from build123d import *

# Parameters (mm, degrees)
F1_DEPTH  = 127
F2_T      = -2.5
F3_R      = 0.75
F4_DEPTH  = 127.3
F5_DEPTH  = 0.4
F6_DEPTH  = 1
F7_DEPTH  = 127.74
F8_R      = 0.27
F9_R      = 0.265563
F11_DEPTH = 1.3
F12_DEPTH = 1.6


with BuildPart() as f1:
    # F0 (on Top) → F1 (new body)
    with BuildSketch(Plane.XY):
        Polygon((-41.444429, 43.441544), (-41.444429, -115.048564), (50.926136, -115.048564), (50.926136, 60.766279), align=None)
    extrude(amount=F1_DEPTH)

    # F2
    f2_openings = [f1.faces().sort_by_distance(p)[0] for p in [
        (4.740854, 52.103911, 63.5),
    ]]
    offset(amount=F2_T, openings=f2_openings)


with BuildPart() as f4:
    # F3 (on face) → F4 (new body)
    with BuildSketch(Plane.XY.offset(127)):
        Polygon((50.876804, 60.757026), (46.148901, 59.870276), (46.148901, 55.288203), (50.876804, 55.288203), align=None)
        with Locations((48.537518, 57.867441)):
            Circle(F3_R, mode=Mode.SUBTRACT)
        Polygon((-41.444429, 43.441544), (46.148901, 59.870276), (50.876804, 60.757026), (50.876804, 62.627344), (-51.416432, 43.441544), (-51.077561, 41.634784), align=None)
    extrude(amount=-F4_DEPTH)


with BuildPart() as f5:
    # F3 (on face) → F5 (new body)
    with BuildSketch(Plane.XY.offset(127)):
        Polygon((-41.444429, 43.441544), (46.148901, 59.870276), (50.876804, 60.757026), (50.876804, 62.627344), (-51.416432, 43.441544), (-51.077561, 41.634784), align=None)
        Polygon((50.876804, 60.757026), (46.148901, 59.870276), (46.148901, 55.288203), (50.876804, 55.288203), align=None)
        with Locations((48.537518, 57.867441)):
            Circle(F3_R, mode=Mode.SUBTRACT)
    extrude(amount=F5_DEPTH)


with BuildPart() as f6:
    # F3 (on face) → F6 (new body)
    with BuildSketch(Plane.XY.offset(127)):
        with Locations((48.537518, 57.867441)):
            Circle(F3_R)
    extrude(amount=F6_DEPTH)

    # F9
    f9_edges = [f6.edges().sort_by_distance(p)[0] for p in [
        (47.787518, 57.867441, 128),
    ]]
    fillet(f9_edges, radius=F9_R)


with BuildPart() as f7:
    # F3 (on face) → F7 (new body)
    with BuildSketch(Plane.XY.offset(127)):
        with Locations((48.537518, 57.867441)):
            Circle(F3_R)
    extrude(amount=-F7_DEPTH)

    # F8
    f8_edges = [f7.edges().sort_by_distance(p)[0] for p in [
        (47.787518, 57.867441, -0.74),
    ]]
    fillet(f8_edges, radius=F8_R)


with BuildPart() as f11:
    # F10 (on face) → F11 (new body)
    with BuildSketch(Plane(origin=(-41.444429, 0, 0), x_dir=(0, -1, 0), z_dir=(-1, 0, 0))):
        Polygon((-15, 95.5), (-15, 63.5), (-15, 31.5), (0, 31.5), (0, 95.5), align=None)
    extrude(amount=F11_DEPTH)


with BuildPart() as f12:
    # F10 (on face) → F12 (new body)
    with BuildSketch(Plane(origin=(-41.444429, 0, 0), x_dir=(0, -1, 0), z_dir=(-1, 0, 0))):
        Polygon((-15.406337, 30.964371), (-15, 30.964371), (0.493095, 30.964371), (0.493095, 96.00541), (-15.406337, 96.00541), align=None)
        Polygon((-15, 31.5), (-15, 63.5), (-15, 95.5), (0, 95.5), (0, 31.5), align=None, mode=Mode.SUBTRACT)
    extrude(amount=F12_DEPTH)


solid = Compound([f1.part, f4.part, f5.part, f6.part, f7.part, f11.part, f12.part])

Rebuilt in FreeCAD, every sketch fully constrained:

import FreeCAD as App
import Part
import Sketcher

V = App.Vector


def edges_at(feature, points):
    """Names of the edges that pass closest to the given points."""
    edges = feature.Shape.Edges
    near = lambda p: min(range(len(edges)), key=lambda i: edges[i].distToShape(Part.Vertex(*p))[0])
    return sorted({f"Edge{near(p) + 1}" for p in points})


def faces_at(feature, points):
    """Names of the faces that lie closest to the given points."""
    faces = feature.Shape.Faces
    near = lambda p: min(range(len(faces)), key=lambda i: faces[i].distToShape(Part.Vertex(*p))[0])
    return sorted({f"Face{near(p) + 1}" for p in points})


def add_polygon(sketch, points):
    """Adds a closed chain of lines whose ends are joined by coincident constraints."""
    first, n = sketch.GeometryCount, len(points)
    for a, b in zip(points, points[1:] + points[:1]):
        sketch.addGeometry(Part.LineSegment(App.Vector(*a, 0), App.Vector(*b, 0)), False)
    for i in range(n):
        sketch.addConstraint(Sketcher.Constraint("Coincident", first + i, 2, first + (i + 1) % n, 1))

doc = App.newDocument("Part")
body = doc.addObject("PartDesign::Body", "Body")

# Sketch on XY plane
sketch1 = body.newObject("Sketcher::SketchObject", "Sketch")
sketch1.AttachmentSupport = (doc.getObject("XY_Plane"), [""])
sketch1.MapMode = "FlatFace"
add_polygon(sketch1, [(-41, 43), (-41, -115), (51, -115), (51, 61)])  # lines 0-3
sketch1.addConstraint([
    Sketcher.Constraint("Vertical", 0),
    Sketcher.Constraint("Horizontal", 1),
    Sketcher.Constraint("Vertical", 2),
    Sketcher.Constraint("DistanceY", 0, 2, 0, 1, 158.490108),
    Sketcher.Constraint("Distance", 3, 93.981209),
    Sketcher.Constraint("DistanceX", 1, 1, 1, 2, 92.370565),
    Sketcher.Constraint("DistanceX", 0, 2, -1, 1, 41.444429),
    Sketcher.Constraint("DistanceY", -1, 1, 2, 2, 60.766279),
])
pad1 = body.newObject("PartDesign::Pad", "Pad")
pad1.Profile = sketch1
pad1.Length = 127
doc.recompute()

thickness = body.newObject("PartDesign::Thickness", "Thickness")
thickness.Base = (pad1, faces_at(pad1, [(4.741, 52.104, 63.5)]))
thickness.Value = 2.5
thickness.Reversed = True
thickness.Join = "Arc"
body2 = doc.addObject("PartDesign::Body", "Body001")

# Sketch on XY plane
sketch2 = body2.newObject("Sketcher::SketchObject", "Sketch001")
sketch2.AttachmentSupport = (doc.getObject("XY_Plane001"), [""])
sketch2.MapMode = "FlatFace"
sketch2.AttachmentOffset = App.Placement(V(0, 0, 127), App.Rotation())
add_polygon(sketch2, [(50.9, 55.3), (50.9, 62.6), (-51.4, 43.4), (-51.1, 41.6), (-41.4, 43.4), (46.1, 59.9), (46.1, 55.3)])  # lines 0-6
sketch2.addGeometry(Part.Circle(V(48.5, 57.9, 0), V(0, 0, 1), 0.8), False)  # 7
sketch2.addConstraint([
    Sketcher.Constraint("Vertical", 0),
    Sketcher.Constraint("Vertical", 5),
    Sketcher.Constraint("Horizontal", 6),
    Sketcher.Constraint("Perpendicular", 1, 2),
    Sketcher.Constraint("Perpendicular", 2, 3),
    Sketcher.Constraint("Parallel", 3, 4),
    Sketcher.Constraint("Horizontal", 1, 2, 3, 2),
    Sketcher.Constraint("Diameter", 7, 1.5),
    Sketcher.Constraint("Distance", 1, 104.0769),
    Sketcher.Constraint("DistanceY", 0, 1, 0, 2, 7.339141),
    Sketcher.Constraint("DistanceX", -1, 1, 4, 2, 46.148901),
    Sketcher.Constraint("DistanceY", 1, 2, 0, 2, 19.1858),
    Sketcher.Constraint("DistanceX", 6, 1, 6, 2, 4.727903),
    Sketcher.Constraint("DistanceY", 5, 2, 5, 1, 4.582073),
    Sketcher.Constraint("DistanceY", -1, 1, 7, 3, 57.867441),
    Sketcher.Constraint("DistanceX", 1, 2, 7, 3, 99.95395),
    Sketcher.Constraint("DistanceY", -1, 1, 0, 2, 62.627344),
])
pad2 = body2.newObject("PartDesign::Pad", "Pad001")
pad2.Profile = sketch2
pad2.Length = 127.3
pad2.Reversed = True
body3 = doc.addObject("PartDesign::Body", "Body002")

# Sketch on XY plane
sketch3 = body3.newObject("Sketcher::SketchObject", "Sketch002")
sketch3.AttachmentSupport = (doc.getObject("XY_Plane002"), [""])
sketch3.MapMode = "FlatFace"
sketch3.AttachmentOffset = App.Placement(V(0, 0, 127), App.Rotation())
add_polygon(sketch3, [(-41.4, 43.4), (46.1, 59.9), (46.1, 55.3), (50.9, 55.3), (50.9, 62.6), (-51.4, 43.4), (-51.1, 41.6)])  # lines 0-6
sketch3.addGeometry(Part.Circle(V(48.5, 57.9, 0), V(0, 0, 1), 0.8), False)  # 7
sketch3.addConstraint([
    Sketcher.Constraint("Vertical", 1),
    Sketcher.Constraint("Horizontal", 2),
    Sketcher.Constraint("Vertical", 3),
    Sketcher.Constraint("Parallel", 0, 4),
    Sketcher.Constraint("Perpendicular", 4, 5),
    Sketcher.Constraint("Perpendicular", 5, 6),
    Sketcher.Constraint("Horizontal", 4, 2, 6, 2),
    Sketcher.Constraint("Diameter", 7, 1.5),
    Sketcher.Constraint("Distance", 4, 104.0769),
    Sketcher.Constraint("DistanceY", 3, 1, 3, 2, 7.339141),
    Sketcher.Constraint("DistanceX", -1, 1, 0, 2, 46.148901),
    Sketcher.Constraint("DistanceY", 4, 2, 3, 2, 19.1858),
    Sketcher.Constraint("DistanceX", 2, 1, 2, 2, 4.727903),
    Sketcher.Constraint("DistanceY", 1, 2, 1, 1, 4.582073),
    Sketcher.Constraint("DistanceY", -1, 1, 7, 3, 57.867441),
    Sketcher.Constraint("DistanceX", 4, 2, 7, 3, 99.95395),
    Sketcher.Constraint("DistanceY", -1, 1, 0, 2, 59.870276),
])
pad3 = body3.newObject("PartDesign::Pad", "Pad002")
pad3.Profile = sketch3
pad3.Length = 0.4
body4 = doc.addObject("PartDesign::Body", "Body003")

# Sketch on XY plane
sketch4 = body4.newObject("Sketcher::SketchObject", "Sketch003")
sketch4.AttachmentSupport = (doc.getObject("XY_Plane003"), [""])
sketch4.MapMode = "FlatFace"
sketch4.AttachmentOffset = App.Placement(V(0, 0, 127), App.Rotation())
sketch4.addGeometry(Part.Circle(V(48.5, 57.9, 0), V(0, 0, 1), 0.8), False)
sketch4.addConstraint([
    Sketcher.Constraint("Diameter", 0, 1.5),
    Sketcher.Constraint("DistanceY", -1, 1, 0, 3, 57.867441),
    Sketcher.Constraint("DistanceX", -1, 1, 0, 3, 48.537518),
])
pad4 = body4.newObject("PartDesign::Pad", "Pad003")
pad4.Profile = sketch4
pad4.Length = 1
doc.recompute()

fillet = body4.newObject("PartDesign::Fillet", "Fillet")
fillet.Base = (pad4, edges_at(pad4, [(47.788, 57.867, 128)]))
fillet.Radius = 0.265563
body5 = doc.addObject("PartDesign::Body", "Body004")

# Sketch on XY plane
sketch5 = body5.newObject("Sketcher::SketchObject", "Sketch004")
sketch5.AttachmentSupport = (doc.getObject("XY_Plane004"), [""])
sketch5.MapMode = "FlatFace"
sketch5.AttachmentOffset = App.Placement(V(0, 0, 127), App.Rotation())
sketch5.addGeometry(Part.Circle(V(48.5, 57.9, 0), V(0, 0, 1), 0.8), False)
sketch5.addConstraint([
    Sketcher.Constraint("Diameter", 0, 1.5),
    Sketcher.Constraint("DistanceY", -1, 1, 0, 3, 57.867441),
    Sketcher.Constraint("DistanceX", -1, 1, 0, 3, 48.537518),
])
pad5 = body5.newObject("PartDesign::Pad", "Pad004")
pad5.Profile = sketch5
pad5.Length = 127.74
pad5.Reversed = True
doc.recompute()

fillet2 = body5.newObject("PartDesign::Fillet", "Fillet001")
fillet2.Base = (pad5, edges_at(pad5, [(47.788, 57.867, -0.74)]))
fillet2.Radius = 0.27
body6 = doc.addObject("PartDesign::Body", "Body005")

# Sketch on YZ plane
sketch6 = body6.newObject("Sketcher::SketchObject", "Sketch005")
sketch6.AttachmentSupport = (doc.getObject("YZ_Plane005"), [""])
sketch6.MapMode = "FlatFace"
sketch6.AttachmentOffset = App.Placement(V(0, 0, -41.444429), App.Rotation())
add_polygon(sketch6, [(15, 96), (15, 32), (0, 32), (0, 96)])  # lines 0-3
sketch6.addConstraint([
    Sketcher.Constraint("Vertical", 0),
    Sketcher.Constraint("Horizontal", 1),
    Sketcher.Constraint("Vertical", 2),
    Sketcher.Constraint("Horizontal", 3),
    Sketcher.Constraint("PointOnObject", 1, 2, -2),
    Sketcher.Constraint("DistanceX", 1, 2, 1, 1, 15.0),
    Sketcher.Constraint("DistanceY", 0, 2, 0, 1, 64.0),
    Sketcher.Constraint("DistanceY", -1, 1, 0, 2, 31.5),
])
pad6 = body6.newObject("PartDesign::Pad", "Pad005")
pad6.Profile = sketch6
pad6.Length = 1.3
pad6.Reversed = True
body7 = doc.addObject("PartDesign::Body", "Body006")

# Sketch on YZ plane
sketch7 = body7.newObject("Sketcher::SketchObject", "Sketch006")
sketch7.AttachmentSupport = (doc.getObject("YZ_Plane006"), [""])
sketch7.MapMode = "FlatFace"
sketch7.AttachmentOffset = App.Placement(V(0, 0, -41.444429), App.Rotation())
add_polygon(sketch7, [(15, 31), (0, 31), (0, 96), (15, 96)])  # lines 0-3
add_polygon(sketch7, [(0, 32), (15, 32), (15, 96), (0, 96)])  # lines 4-7
sketch7.addConstraint([
    Sketcher.Constraint("Horizontal", 0),
    Sketcher.Constraint("Vertical", 1),
    Sketcher.Constraint("Horizontal", 2),
    Sketcher.Constraint("Vertical", 3),
    Sketcher.Constraint("Horizontal", 4),
    Sketcher.Constraint("Vertical", 5),
    Sketcher.Constraint("Horizontal", 6),
    Sketcher.Constraint("Vertical", 7),
    Sketcher.Constraint("PointOnObject", 6, 2, -2),
    Sketcher.Constraint("DistanceX", 4, 1, 4, 2, 15.0),
    Sketcher.Constraint("DistanceY", 5, 1, 5, 2, 64.0),
    Sketcher.Constraint("DistanceY", -1, 1, 4, 2, 31.5),
    Sketcher.Constraint("DistanceY", 1, 1, 1, 2, 65.041039),
    Sketcher.Constraint("DistanceX", 0, 2, 0, 1, 15.899432),
    Sketcher.Constraint("DistanceY", -1, 1, 0, 2, 30.964371),
    Sketcher.Constraint("DistanceX", 0, 2, -1, 1, 0.493095),
])
pad7 = body7.newObject("PartDesign::Pad", "Pad006")
pad7.Profile = sketch7
pad7.Length = 1.6
pad7.Reversed = True

doc.recompute()
